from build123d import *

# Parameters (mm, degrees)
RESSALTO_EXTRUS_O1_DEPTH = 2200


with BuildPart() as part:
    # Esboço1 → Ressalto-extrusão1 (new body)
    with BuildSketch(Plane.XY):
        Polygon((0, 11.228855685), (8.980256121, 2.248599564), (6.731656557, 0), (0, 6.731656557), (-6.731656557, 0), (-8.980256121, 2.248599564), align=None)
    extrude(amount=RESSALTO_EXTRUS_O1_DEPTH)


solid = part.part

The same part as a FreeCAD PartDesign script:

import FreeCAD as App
import Part
import Sketcher

V = App.Vector


def add_polygon(sketch, points):
    """Adds a closed chain of lines whose ends are joined by coincident constraints."""
    first, n = sketch.GeometryCount, len(points)
    for a, b in zip(points, points[1:] + points[:1]):
        sketch.addGeometry(Part.LineSegment(App.Vector(*a, 0), App.Vector(*b, 0)), False)
    for i in range(n):
        sketch.addConstraint(Sketcher.Constraint("Coincident", first + i, 2, first + (i + 1) % n, 1))

doc = App.newDocument("Part")
body = doc.addObject("PartDesign::Body", "Body")

# Sketch on XY plane
sketch1 = body.newObject("Sketcher::SketchObject", "Sketch")
sketch1.AttachmentSupport = (doc.getObject("XY_Plane"), [""])
sketch1.MapMode = "FlatFace"
add_polygon(sketch1, [(9, 2.2), (0, 11.2), (-9, 2.2), (-6.7, 0), (0, 6.7), (6.7, 0)])  # lines 0-5
sketch1.addConstraint([
    Sketcher.Constraint("Symmetric", 2, 2, 4, 2, -1, 1),
    Sketcher.Constraint("Symmetric", 1, 2, 5, 2, -2),
    Sketcher.Constraint("PointOnObject", 0, 2, -2),
    Sketcher.Constraint("PointOnObject", 2, 2, -1),
    Sketcher.Constraint("PointOnObject", 3, 2, -2),
    Sketcher.Constraint("Perpendicular", 0, 1),
    Sketcher.Constraint("Perpendicular", 1, 2),
    Sketcher.Constraint("Perpendicular", 2, 3),
    Sketcher.Constraint("Distance", 0, 12.7),
    Sketcher.Constraint("Distance", 2, 3.18),
])
pad1 = body.newObject("PartDesign::Pad", "Pad")
pad1.Profile = sketch1
pad1.Length = 2200

doc.recompute()
